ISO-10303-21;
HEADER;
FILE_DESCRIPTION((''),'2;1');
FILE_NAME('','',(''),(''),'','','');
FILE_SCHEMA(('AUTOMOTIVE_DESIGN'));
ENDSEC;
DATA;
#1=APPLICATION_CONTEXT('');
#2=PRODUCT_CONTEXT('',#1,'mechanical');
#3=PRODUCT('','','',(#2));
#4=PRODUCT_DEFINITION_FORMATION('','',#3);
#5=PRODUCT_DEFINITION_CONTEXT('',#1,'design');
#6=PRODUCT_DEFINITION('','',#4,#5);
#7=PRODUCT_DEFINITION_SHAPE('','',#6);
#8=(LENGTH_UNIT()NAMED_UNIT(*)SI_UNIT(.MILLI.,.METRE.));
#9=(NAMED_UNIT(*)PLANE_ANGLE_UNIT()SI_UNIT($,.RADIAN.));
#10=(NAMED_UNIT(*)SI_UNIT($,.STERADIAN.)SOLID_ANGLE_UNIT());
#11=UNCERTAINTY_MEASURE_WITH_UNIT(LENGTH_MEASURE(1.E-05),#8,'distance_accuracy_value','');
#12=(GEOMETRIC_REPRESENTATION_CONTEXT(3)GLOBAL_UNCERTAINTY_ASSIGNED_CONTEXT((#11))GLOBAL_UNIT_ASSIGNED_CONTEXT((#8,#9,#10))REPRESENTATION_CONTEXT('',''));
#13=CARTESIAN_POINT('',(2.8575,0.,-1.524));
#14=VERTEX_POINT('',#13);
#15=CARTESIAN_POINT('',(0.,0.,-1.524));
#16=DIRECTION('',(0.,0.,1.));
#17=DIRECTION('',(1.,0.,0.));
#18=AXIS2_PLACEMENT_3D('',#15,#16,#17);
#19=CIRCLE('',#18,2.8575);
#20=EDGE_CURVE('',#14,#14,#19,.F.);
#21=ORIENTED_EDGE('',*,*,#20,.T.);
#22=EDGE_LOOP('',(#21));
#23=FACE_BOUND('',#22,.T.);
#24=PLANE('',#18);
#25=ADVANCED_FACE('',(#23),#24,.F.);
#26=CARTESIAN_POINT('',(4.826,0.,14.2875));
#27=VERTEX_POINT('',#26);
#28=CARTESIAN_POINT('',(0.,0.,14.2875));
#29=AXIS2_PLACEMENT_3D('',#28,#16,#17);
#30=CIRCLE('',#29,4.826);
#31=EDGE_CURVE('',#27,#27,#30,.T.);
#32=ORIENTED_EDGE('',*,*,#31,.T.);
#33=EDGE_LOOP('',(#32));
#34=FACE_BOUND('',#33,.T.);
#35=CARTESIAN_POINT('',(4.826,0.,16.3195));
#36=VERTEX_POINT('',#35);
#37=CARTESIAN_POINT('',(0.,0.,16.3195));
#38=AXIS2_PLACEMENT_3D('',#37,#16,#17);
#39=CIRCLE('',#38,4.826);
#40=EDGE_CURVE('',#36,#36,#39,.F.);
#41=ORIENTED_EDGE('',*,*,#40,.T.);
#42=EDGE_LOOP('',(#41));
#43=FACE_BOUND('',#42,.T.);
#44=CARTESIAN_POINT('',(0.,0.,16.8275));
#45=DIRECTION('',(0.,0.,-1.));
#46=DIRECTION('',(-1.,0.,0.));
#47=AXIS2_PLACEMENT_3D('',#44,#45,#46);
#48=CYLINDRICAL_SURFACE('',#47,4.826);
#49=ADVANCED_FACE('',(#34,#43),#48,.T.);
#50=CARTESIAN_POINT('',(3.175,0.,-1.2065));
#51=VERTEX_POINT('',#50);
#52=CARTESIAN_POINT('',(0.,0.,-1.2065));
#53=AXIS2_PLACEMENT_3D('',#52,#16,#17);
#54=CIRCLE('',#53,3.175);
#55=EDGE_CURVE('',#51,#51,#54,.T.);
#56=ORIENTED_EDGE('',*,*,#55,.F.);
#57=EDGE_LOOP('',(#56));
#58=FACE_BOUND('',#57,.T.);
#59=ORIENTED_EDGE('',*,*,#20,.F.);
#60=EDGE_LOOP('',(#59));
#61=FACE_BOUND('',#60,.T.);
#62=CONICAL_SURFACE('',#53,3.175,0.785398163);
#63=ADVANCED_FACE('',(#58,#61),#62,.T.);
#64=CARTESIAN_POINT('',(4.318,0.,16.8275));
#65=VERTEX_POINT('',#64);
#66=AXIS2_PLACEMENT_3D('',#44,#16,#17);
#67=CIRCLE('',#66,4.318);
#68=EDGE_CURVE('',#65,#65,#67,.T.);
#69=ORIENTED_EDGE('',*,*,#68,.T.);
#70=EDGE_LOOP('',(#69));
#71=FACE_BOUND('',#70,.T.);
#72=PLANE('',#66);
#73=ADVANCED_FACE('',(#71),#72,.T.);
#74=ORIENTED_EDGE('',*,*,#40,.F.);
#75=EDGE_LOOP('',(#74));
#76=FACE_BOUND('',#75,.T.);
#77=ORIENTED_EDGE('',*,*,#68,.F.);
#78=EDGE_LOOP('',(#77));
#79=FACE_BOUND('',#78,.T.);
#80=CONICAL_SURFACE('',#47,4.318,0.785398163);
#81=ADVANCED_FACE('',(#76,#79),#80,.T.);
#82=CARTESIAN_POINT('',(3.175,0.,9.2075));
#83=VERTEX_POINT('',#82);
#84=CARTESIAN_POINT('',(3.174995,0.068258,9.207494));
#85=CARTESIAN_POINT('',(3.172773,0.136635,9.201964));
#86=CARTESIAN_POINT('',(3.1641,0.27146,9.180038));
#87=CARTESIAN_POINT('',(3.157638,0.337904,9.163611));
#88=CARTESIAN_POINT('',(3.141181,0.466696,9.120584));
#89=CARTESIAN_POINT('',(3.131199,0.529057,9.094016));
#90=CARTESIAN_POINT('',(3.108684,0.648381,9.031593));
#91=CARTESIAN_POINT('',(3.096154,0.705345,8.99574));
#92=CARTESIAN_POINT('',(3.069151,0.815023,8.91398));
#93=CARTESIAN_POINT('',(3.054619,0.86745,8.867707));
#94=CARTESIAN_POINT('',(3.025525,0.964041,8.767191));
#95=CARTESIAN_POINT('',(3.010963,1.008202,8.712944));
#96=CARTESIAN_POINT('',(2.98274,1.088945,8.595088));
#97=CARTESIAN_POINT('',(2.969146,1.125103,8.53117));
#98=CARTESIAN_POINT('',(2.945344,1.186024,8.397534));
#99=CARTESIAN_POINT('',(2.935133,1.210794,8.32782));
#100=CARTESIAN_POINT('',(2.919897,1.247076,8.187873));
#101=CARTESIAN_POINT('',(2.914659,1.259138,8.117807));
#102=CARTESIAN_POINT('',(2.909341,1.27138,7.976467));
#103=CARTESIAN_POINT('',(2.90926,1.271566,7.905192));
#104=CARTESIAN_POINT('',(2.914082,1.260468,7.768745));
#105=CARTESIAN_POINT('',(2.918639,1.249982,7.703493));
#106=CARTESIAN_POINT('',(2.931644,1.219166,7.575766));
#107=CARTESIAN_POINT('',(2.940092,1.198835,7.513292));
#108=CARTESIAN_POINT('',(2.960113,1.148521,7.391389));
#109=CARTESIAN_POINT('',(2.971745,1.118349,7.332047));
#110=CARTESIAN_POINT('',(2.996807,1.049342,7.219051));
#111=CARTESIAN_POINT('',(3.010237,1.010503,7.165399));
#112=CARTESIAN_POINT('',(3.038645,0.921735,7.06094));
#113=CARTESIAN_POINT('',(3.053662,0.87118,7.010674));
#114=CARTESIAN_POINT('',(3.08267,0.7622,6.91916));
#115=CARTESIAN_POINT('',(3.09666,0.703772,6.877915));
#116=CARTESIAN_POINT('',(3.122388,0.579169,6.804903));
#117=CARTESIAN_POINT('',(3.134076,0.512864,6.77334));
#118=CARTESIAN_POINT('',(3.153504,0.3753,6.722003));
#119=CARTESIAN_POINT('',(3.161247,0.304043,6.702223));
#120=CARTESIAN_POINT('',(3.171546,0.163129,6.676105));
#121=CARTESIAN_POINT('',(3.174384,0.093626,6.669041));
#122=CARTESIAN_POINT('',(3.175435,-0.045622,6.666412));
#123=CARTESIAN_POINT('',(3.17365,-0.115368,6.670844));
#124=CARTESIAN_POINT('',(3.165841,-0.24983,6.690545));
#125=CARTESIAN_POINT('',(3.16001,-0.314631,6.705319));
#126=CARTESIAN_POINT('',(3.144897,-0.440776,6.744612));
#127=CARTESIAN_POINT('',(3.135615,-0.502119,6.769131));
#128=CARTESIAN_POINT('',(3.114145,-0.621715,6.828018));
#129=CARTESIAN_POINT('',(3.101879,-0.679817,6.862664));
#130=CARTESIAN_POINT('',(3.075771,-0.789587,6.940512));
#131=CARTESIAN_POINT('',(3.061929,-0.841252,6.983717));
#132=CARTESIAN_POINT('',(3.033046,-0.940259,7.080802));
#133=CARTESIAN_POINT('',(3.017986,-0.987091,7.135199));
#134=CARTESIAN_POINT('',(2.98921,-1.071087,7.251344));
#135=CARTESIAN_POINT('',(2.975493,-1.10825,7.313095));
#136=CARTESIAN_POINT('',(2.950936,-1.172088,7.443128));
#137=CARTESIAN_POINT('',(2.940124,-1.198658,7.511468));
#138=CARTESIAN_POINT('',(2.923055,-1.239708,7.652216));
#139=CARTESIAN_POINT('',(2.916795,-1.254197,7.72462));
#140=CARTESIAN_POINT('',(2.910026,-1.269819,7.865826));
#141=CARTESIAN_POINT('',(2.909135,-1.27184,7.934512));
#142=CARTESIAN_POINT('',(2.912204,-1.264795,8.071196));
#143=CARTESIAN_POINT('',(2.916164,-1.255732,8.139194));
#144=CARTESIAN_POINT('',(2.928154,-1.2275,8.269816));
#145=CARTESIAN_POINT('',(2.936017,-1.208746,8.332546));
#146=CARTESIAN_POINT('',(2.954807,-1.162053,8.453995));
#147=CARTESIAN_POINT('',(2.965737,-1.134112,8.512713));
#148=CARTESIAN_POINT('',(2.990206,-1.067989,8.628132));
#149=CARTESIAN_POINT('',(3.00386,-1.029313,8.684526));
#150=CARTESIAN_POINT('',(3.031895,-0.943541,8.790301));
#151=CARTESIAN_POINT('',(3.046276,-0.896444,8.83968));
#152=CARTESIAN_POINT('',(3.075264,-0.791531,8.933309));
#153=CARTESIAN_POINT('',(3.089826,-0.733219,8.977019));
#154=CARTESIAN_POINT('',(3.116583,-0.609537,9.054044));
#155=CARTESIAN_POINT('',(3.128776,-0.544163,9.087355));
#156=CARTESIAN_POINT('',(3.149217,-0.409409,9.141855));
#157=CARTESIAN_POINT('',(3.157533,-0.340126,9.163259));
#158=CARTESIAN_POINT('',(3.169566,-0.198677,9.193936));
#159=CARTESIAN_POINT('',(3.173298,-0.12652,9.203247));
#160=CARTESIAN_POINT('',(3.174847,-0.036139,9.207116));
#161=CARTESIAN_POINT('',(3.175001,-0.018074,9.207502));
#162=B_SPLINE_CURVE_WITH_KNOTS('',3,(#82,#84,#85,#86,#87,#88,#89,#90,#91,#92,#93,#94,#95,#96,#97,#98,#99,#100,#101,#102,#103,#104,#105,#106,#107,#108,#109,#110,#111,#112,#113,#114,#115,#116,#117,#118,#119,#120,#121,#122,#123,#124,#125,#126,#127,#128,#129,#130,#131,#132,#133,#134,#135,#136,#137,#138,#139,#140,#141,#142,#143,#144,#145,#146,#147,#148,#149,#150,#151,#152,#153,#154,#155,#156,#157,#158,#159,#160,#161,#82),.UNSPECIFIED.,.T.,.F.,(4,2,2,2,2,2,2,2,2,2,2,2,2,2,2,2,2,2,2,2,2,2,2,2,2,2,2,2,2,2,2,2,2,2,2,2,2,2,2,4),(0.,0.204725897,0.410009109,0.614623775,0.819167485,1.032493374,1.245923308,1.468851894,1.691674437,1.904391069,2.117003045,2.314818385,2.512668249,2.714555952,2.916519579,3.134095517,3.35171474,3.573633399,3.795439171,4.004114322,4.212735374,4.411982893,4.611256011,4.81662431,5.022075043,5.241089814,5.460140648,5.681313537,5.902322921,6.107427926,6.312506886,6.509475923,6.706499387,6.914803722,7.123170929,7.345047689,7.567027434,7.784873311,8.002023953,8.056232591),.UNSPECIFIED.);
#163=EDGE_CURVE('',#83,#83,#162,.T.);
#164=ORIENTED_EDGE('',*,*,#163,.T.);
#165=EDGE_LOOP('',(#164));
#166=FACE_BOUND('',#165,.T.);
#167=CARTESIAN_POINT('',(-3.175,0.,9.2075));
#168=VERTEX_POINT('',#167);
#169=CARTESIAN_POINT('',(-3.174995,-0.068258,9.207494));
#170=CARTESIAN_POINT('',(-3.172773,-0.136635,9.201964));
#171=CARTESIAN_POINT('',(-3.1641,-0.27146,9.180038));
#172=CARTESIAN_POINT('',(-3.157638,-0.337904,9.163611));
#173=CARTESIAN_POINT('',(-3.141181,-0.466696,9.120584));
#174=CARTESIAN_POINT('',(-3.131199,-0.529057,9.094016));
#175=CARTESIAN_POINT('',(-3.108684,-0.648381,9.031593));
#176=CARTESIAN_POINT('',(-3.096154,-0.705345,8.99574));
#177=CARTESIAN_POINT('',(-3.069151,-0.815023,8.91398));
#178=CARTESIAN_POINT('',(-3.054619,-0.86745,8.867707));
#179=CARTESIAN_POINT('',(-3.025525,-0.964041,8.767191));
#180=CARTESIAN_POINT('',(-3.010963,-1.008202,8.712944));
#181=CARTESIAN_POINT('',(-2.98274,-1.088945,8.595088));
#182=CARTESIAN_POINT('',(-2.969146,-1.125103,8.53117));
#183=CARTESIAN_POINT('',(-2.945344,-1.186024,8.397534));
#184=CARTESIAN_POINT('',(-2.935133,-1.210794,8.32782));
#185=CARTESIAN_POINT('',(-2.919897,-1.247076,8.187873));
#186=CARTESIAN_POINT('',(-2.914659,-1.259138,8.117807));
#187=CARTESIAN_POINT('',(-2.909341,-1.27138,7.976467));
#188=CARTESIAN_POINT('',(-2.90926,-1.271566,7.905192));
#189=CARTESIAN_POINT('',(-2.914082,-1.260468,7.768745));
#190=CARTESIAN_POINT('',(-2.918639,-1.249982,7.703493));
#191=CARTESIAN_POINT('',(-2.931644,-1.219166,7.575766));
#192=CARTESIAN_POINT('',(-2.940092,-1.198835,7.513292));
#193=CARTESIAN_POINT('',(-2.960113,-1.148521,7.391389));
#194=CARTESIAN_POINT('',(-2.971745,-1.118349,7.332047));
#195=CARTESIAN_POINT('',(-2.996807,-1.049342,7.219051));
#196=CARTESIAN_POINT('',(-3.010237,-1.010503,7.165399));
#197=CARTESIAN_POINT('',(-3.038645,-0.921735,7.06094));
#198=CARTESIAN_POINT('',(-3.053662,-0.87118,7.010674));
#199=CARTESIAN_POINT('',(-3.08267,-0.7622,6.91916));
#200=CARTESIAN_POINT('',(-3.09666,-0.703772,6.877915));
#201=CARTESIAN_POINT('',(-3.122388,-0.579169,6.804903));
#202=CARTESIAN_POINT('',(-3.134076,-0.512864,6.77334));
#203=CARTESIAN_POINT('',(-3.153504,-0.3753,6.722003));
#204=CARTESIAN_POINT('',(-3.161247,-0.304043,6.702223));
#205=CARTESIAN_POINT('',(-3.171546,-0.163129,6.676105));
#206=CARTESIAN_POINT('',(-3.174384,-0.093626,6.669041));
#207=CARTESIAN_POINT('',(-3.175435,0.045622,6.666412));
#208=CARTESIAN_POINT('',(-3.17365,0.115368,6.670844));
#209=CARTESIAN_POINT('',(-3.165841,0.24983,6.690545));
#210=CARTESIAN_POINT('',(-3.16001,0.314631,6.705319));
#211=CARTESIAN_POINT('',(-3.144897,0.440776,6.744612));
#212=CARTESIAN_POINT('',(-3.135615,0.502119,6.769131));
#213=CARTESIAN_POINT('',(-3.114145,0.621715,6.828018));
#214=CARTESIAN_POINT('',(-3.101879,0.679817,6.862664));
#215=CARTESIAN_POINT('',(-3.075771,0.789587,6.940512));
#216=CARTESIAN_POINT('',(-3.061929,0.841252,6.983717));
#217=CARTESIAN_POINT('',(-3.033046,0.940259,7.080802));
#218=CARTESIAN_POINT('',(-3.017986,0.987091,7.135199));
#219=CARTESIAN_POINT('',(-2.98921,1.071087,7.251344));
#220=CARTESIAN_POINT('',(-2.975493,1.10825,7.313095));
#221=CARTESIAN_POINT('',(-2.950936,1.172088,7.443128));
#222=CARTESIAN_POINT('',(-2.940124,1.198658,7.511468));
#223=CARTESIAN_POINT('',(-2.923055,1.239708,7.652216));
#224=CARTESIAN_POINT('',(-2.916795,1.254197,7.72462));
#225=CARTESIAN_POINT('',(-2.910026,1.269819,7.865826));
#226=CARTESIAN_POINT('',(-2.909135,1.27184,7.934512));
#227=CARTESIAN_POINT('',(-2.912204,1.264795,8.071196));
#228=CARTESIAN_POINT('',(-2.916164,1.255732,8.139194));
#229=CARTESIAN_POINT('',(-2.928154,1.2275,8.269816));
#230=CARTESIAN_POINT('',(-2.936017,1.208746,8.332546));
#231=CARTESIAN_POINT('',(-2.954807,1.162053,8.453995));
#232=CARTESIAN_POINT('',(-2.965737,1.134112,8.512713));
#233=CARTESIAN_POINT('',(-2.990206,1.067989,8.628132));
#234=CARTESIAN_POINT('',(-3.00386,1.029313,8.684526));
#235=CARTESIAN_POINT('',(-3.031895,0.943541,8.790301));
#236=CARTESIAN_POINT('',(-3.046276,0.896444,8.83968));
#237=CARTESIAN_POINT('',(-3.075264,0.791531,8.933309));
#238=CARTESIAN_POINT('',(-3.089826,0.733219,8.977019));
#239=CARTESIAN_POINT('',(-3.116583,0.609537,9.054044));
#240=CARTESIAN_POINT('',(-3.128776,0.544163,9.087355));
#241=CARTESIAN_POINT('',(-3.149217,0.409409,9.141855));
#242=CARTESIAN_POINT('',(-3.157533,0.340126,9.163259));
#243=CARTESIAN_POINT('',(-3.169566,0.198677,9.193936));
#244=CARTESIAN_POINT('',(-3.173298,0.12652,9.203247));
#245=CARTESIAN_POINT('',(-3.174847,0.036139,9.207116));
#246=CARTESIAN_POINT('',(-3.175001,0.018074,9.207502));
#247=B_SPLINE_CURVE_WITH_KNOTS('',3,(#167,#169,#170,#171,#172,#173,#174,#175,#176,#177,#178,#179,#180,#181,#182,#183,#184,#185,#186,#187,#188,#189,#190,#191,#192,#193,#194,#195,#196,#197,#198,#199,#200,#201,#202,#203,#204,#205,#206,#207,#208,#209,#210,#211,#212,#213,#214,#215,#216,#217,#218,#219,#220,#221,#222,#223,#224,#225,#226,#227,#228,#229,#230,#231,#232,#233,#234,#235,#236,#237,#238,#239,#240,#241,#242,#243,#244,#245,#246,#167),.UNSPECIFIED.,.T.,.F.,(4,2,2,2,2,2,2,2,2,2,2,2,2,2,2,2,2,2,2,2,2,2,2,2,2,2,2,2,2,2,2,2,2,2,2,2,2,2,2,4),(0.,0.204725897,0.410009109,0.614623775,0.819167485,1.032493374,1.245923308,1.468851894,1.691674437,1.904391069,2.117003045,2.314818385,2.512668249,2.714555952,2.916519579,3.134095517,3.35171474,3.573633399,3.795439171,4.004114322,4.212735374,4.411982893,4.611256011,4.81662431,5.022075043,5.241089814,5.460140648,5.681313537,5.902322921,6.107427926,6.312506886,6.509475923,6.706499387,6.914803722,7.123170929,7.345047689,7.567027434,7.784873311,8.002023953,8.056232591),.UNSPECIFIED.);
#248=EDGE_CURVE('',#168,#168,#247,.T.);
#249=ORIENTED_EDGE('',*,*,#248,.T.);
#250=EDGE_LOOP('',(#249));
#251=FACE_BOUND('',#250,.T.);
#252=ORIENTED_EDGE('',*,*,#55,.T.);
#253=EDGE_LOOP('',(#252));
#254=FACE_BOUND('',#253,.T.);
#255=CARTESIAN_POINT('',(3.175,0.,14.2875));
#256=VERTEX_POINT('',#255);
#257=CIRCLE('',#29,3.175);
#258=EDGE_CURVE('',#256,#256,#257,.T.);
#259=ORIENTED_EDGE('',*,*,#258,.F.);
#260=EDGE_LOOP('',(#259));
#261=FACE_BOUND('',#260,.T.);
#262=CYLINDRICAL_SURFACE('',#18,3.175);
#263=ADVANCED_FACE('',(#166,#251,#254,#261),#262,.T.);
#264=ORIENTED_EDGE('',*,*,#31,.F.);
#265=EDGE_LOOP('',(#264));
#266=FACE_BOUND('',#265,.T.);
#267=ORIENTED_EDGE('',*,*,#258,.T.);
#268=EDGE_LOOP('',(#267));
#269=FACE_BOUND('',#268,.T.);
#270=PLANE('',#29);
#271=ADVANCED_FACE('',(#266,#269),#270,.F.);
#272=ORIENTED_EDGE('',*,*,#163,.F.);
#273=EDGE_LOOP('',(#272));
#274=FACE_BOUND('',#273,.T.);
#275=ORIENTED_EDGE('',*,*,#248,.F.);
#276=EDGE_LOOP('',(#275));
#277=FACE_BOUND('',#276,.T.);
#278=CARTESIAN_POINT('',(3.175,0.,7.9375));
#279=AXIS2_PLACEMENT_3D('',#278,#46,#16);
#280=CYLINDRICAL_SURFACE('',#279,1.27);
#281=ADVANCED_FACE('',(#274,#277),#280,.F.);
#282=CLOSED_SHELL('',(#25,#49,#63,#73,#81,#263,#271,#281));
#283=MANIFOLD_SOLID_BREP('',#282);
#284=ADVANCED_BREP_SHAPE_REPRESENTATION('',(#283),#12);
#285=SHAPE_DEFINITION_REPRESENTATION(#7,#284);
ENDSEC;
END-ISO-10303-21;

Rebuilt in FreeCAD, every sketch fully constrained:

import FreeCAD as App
import Part
import Sketcher
from FreeCAD import Vector
Q = App.Units.Quantity


def edges_at(feature, points):
    """Names of the edges that pass closest to the given points."""
    edges = feature.Shape.Edges
    near = lambda p: min(range(len(edges)), key=lambda i: edges[i].distToShape(Part.Vertex(*p))[0])
    return sorted({f"Edge{near(p) + 1}" for p in points})

doc = App.newDocument("Part")
params = doc.addObject("Spreadsheet::Sheet", "Params")
for row, (alias, value) in enumerate([
    ("sketch1_diameter", "0.25 in"),
    ("pad1_length", "0.5625 in"),
    ("pad1_length2", "0.06 in"),
    ("sketch2_diameter", "0.38 in"),
    ("pad2_length", "0.1 in"),
    ("chamfer_size", "0.02 in"),
    ("chamfer2_size", "0.0125 in"),
    ("sketch3_diameter", "0.1 in"),
], start=1):
    params.set(f"A{row}", alias)
    params.set(f"B{row}", "=" + value)
    params.setAlias(f"B{row}", alias)

body = doc.addObject("PartDesign::Body", "Body")

sketch1 = body.newObject("Sketcher::SketchObject", "Sketch")
sketch1.AttachmentSupport = (doc.getObject("XY_Plane"), [""])
sketch1.MapMode = "FlatFace"
sketch1.addGeometry(Part.Circle(Vector(0, 0, 0), Vector(0, 0, 1), 3.2), False)
sketch1.addConstraint(Sketcher.Constraint("Coincident", 0, 3, -1, 1))
sketch1.addConstraint(Sketcher.Constraint("Diameter", 0, Q("0.25 in")))
sketch1.setExpression("Constraints[1]", "Params.sketch1_diameter")
pad1 = body.newObject("PartDesign::Pad", "Pad")
pad1.Profile = sketch1
pad1.Type = "TwoLengths"
pad1.setExpression("Length", "Params.pad1_length")
pad1.setExpression("Length2", "Params.pad1_length2")

sketch2 = body.newObject("Sketcher::SketchObject", "Sketch001")
sketch2.AttachmentSupport = (doc.getObject("XY_Plane"), [""])
sketch2.MapMode = "FlatFace"
sketch2.AttachmentOffset = App.Placement(Vector(0, 0, 0.5625 * 25.4), App.Rotation())
sketch2.addGeometry(Part.Circle(Vector(0, 0, 0), Vector(0, 0, 1), 4.8), False)
sketch2.addConstraint(Sketcher.Constraint("Coincident", 0, 3, -1, 1))
sketch2.addConstraint(Sketcher.Constraint("Diameter", 0, Q("0.38 in")))
sketch2.setExpression("Constraints[1]", "Params.sketch2_diameter")
pad2 = body.newObject("PartDesign::Pad", "Pad001")
pad2.Profile = sketch2
pad2.setExpression("Length", "Params.pad2_length")
doc.recompute()

chamfer = body.newObject("PartDesign::Chamfer", "Chamfer")
chamfer.Base = (pad2, edges_at(pad2, [(-4.826, 0, 16.828)]))
chamfer.setExpression("Size", "Params.chamfer_size")
doc.recompute()

chamfer2 = body.newObject("PartDesign::Chamfer", "Chamfer001")
chamfer2.Base = (chamfer, edges_at(chamfer, [(-3.175, 0, -1.524)]))
chamfer2.setExpression("Size", "Params.chamfer2_size")

sketch3 = body.newObject("Sketcher::SketchObject", "Sketch002")
sketch3.AttachmentSupport = (doc.getObject("YZ_Plane"), [""])
sketch3.MapMode = "FlatFace"
sketch3.addGeometry(Part.Circle(Vector(0, 7.9, 0), Vector(0, 0, 1), 1.3), False)
sketch3.addConstraint(Sketcher.Constraint("PointOnObject", 0, 3, -2))
sketch3.addConstraint(Sketcher.Constraint("Diameter", 0, Q("0.1 in")))
sketch3.addConstraint(Sketcher.Constraint("DistanceY", -1, 1, 0, 3, Q("0.3125 in")))
sketch3.setExpression("Constraints[1]", "Params.sketch3_diameter")
pocket1 = body.newObject("PartDesign::Pocket", "Pocket")
pocket1.Profile = sketch3
pocket1.Type = "ThroughAll"
pocket1.Midplane = True

doc.recompute()
